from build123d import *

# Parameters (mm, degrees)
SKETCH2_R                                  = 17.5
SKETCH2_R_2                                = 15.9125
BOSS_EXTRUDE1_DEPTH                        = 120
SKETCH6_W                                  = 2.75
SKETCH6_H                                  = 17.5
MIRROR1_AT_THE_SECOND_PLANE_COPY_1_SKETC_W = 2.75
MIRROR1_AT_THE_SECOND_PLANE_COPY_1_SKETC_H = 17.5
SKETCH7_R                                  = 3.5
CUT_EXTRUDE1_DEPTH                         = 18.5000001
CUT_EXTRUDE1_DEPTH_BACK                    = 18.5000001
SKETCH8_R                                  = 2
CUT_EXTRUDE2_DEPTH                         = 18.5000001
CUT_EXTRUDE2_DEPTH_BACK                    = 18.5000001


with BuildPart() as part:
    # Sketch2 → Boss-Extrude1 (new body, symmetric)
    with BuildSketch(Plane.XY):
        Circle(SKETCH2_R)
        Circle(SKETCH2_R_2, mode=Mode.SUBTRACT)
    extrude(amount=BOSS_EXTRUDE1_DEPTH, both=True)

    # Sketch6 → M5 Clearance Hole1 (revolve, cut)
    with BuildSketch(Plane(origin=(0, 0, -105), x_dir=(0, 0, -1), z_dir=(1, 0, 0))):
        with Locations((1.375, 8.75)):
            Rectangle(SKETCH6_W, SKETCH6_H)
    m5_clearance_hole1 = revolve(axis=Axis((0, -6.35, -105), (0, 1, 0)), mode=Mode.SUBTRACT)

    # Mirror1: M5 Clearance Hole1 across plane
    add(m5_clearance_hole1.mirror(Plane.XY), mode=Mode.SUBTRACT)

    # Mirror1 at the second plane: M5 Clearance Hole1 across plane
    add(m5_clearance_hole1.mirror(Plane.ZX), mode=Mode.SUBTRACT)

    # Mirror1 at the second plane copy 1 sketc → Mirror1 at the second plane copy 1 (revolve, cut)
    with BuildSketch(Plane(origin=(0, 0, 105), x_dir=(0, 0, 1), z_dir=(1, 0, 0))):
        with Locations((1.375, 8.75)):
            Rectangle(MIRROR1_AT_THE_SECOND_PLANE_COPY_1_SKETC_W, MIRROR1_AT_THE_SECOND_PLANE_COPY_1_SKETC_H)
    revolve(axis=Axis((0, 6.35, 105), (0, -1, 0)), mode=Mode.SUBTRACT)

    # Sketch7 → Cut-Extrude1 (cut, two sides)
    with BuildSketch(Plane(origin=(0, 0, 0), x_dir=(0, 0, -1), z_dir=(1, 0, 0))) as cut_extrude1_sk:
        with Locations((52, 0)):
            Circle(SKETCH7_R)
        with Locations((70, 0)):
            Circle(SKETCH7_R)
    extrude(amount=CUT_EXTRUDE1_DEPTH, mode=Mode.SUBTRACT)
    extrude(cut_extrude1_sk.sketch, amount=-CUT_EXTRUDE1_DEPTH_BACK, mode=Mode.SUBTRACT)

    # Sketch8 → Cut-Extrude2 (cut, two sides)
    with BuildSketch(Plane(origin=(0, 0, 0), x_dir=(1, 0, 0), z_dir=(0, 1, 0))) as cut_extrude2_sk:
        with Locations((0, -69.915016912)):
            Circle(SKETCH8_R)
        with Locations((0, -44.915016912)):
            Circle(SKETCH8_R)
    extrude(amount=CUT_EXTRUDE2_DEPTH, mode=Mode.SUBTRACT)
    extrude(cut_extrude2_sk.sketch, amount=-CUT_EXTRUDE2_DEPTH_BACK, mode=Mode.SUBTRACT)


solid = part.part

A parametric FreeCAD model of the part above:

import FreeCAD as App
import Part
import Sketcher
from FreeCAD import Vector
Q = App.Units.Quantity


def add_polygon(sketch, points):
    """Adds a closed chain of lines whose ends are joined by coincident constraints."""
    first, n = sketch.GeometryCount, len(points)
    for a, b in zip(points, points[1:] + points[:1]):
        sketch.addGeometry(Part.LineSegment(App.Vector(*a, 0), App.Vector(*b, 0)), False)
    for i in range(n):
        sketch.addConstraint(Sketcher.Constraint("Coincident", first + i, 2, first + (i + 1) % n, 1))

doc = App.newDocument("Part")
body = doc.addObject("PartDesign::Body", "Body")

# Sketch on XY plane
sketch1 = doc.addObject("Sketcher::SketchObject", "Sketch")
body.addObject(sketch1)
sketch1.AttachmentSupport = (doc.XY_Plane, [""])
sketch1.MapMode = "FlatFace"
sketch1.addGeometry(Part.Circle(Vector(0, 0, 0), Vector(0, 0, 1), 17.5), False)
sketch1.addGeometry(Part.Circle(Vector(0, 0, 0), Vector(0, 0, 1), 15.9125), False)
sketch1.addConstraint(Sketcher.Constraint("Coincident", 0, 3, -1, 1))
sketch1.addConstraint(Sketcher.Constraint("Coincident", 1, 3, -1, 1))
sketch1.addConstraint(Sketcher.Constraint("Diameter", 0, Q("35 mm")))
sketch1.addConstraint(Sketcher.Constraint("Diameter", 1, Q("31.825 mm")))
pad1 = doc.addObject("PartDesign::Pad", "Pad")
body.addObject(pad1)
pad1.Profile = sketch1
pad1.Length = 240
pad1.Midplane = True

# Sketch on YZ plane
sketch2 = doc.addObject("Sketcher::SketchObject", "Sketch001")
body.addObject(sketch2)
sketch2.AttachmentSupport = (doc.YZ_Plane, [""])
sketch2.MapMode = "FlatFace"
add_polygon(sketch2, [(17.5, -105), (0, -105), (0, -107.75), (17.5, -107.75)])  # lines 0-3
sketch2.addGeometry(Part.LineSegment(Vector(0, -105, 0), Vector(17.5, -105, 0)), True)  # axis
sketch2.addConstraint(Sketcher.Constraint("Horizontal", 0))
sketch2.addConstraint(Sketcher.Constraint("Vertical", 1))
sketch2.addConstraint(Sketcher.Constraint("Horizontal", 2))
sketch2.addConstraint(Sketcher.Constraint("Vertical", 3))
sketch2.addConstraint(Sketcher.Constraint("Horizontal", 4))
sketch2.addConstraint(Sketcher.Constraint("Coincident", 4, 1, 0, 2))
sketch2.addConstraint(Sketcher.Constraint("PointOnObject", 0, 2, -2))
sketch2.addConstraint(Sketcher.Constraint("Vertical", 2, 2, 4, 2))
sketch2.addConstraint(Sketcher.Constraint("DistanceX", 0, 2, 0, 1, Q("17.5 mm")))
sketch2.addConstraint(Sketcher.Constraint("DistanceY", 0, 2, -1, 1, Q("105 mm")))
sketch2.addConstraint(Sketcher.Constraint("DistanceY", 1, 2, 1, 1, Q("2.75 mm")))
groove = doc.addObject("PartDesign::Groove", "Groove")
body.addObject(groove)
groove.Profile = sketch2
groove.ReferenceAxis = (sketch2, ["Axis0"])
groove.Angle = 360
doc.recompute()

mirrored = doc.addObject("PartDesign::Mirrored", "Mirrored")
body.addObject(mirrored)
mirrored.Originals = [groove]
mirrored.MirrorPlane = (doc.XY_Plane, [""])
body.Tip = mirrored
doc.recompute()

mirrored2 = doc.addObject("PartDesign::Mirrored", "Mirrored001")
body.addObject(mirrored2)
mirrored2.Originals = [groove]
mirrored2.MirrorPlane = (doc.XZ_Plane, [""])
body.Tip = mirrored2

# Sketch on YZ plane
sketch3 = doc.addObject("Sketcher::SketchObject", "Sketch002")
body.addObject(sketch3)
sketch3.AttachmentSupport = (doc.YZ_Plane, [""])
sketch3.MapMode = "FlatFace"
add_polygon(sketch3, [(-17.5, 105), (0, 105), (0, 107.75), (-17.5, 107.75)])  # lines 0-3
sketch3.addGeometry(Part.LineSegment(Vector(0, 105, 0), Vector(-17.5, 105, 0)), True)  # axis
sketch3.addConstraint(Sketcher.Constraint("Horizontal", 0))
sketch3.addConstraint(Sketcher.Constraint("Vertical", 1))
sketch3.addConstraint(Sketcher.Constraint("Horizontal", 2))
sketch3.addConstraint(Sketcher.Constraint("Vertical", 3))
sketch3.addConstraint(Sketcher.Constraint("Horizontal", 4))
sketch3.addConstraint(Sketcher.Constraint("Coincident", 4, 1, 0, 2))
sketch3.addConstraint(Sketcher.Constraint("PointOnObject", 0, 2, -2))
sketch3.addConstraint(Sketcher.Constraint("Vertical", 2, 2, 4, 2))
sketch3.addConstraint(Sketcher.Constraint("DistanceX", 0, 1, 0, 2, Q("17.5 mm")))
sketch3.addConstraint(Sketcher.Constraint("DistanceY", -1, 1, 0, 2, Q("105 mm")))
sketch3.addConstraint(Sketcher.Constraint("DistanceY", 1, 1, 1, 2, Q("2.75 mm")))
groove2 = doc.addObject("PartDesign::Groove", "Groove001")
body.addObject(groove2)
groove2.Profile = sketch3
groove2.ReferenceAxis = (sketch3, ["Axis0"])
groove2.Angle = 360

# Sketch on YZ plane
sketch4 = doc.addObject("Sketcher::SketchObject", "Sketch003")
body.addObject(sketch4)
sketch4.AttachmentSupport = (doc.YZ_Plane, [""])
sketch4.MapMode = "FlatFace"
sketch4.addGeometry(Part.Circle(Vector(0, -52, 0), Vector(0, 0, 1), 3.5), False)
sketch4.addGeometry(Part.Circle(Vector(0, -70, 0), Vector(0, 0, 1), 3.5), False)
sketch4.addConstraint(Sketcher.Constraint("Equal", 0, 1))
sketch4.addConstraint(Sketcher.Constraint("PointOnObject", 0, 3, -2))
sketch4.addConstraint(Sketcher.Constraint("PointOnObject", 1, 3, -2))
sketch4.addConstraint(Sketcher.Constraint("Diameter", 0, Q("7 mm")))
sketch4.addConstraint(Sketcher.Constraint("DistanceY", 0, 3, -1, 1, Q("52 mm")))
sketch4.addConstraint(Sketcher.Constraint("DistanceY", 1, 3, -1, 1, Q("70 mm")))
pocket1 = doc.addObject("PartDesign::Pocket", "Pocket")
body.addObject(pocket1)
pocket1.Profile = sketch4
pocket1.Type = "ThroughAll"
pocket1.Midplane = True

# Sketch on XZ plane
sketch5 = doc.addObject("Sketcher::SketchObject", "Sketch004")
body.addObject(sketch5)
sketch5.AttachmentSupport = (doc.XZ_Plane, [""])
sketch5.MapMode = "FlatFace"
sketch5.addGeometry(Part.Circle(Vector(0, 69.915017, 0), Vector(0, 0, 1), 2), False)
sketch5.addGeometry(Part.Circle(Vector(0, 44.915017, 0), Vector(0, 0, 1), 2), False)
sketch5.addConstraint(Sketcher.Constraint("Equal", 0, 1))
sketch5.addConstraint(Sketcher.Constraint("PointOnObject", 0, 3, -2))
sketch5.addConstraint(Sketcher.Constraint("PointOnObject", 1, 3, -2))
sketch5.addConstraint(Sketcher.Constraint("Diameter", 0, Q("4 mm")))
sketch5.addConstraint(Sketcher.Constraint("DistanceY", 1, 3, 0, 3, Q("25 mm")))
sketch5.addConstraint(Sketcher.Constraint("DistanceY", -1, 1, 0, 3, Q("69.915017 mm")))
pocket2 = doc.addObject("PartDesign::Pocket", "Pocket001")
body.addObject(pocket2)
pocket2.Profile = sketch5
pocket2.Type = "ThroughAll"
pocket2.Midplane = True

doc.recompute()
